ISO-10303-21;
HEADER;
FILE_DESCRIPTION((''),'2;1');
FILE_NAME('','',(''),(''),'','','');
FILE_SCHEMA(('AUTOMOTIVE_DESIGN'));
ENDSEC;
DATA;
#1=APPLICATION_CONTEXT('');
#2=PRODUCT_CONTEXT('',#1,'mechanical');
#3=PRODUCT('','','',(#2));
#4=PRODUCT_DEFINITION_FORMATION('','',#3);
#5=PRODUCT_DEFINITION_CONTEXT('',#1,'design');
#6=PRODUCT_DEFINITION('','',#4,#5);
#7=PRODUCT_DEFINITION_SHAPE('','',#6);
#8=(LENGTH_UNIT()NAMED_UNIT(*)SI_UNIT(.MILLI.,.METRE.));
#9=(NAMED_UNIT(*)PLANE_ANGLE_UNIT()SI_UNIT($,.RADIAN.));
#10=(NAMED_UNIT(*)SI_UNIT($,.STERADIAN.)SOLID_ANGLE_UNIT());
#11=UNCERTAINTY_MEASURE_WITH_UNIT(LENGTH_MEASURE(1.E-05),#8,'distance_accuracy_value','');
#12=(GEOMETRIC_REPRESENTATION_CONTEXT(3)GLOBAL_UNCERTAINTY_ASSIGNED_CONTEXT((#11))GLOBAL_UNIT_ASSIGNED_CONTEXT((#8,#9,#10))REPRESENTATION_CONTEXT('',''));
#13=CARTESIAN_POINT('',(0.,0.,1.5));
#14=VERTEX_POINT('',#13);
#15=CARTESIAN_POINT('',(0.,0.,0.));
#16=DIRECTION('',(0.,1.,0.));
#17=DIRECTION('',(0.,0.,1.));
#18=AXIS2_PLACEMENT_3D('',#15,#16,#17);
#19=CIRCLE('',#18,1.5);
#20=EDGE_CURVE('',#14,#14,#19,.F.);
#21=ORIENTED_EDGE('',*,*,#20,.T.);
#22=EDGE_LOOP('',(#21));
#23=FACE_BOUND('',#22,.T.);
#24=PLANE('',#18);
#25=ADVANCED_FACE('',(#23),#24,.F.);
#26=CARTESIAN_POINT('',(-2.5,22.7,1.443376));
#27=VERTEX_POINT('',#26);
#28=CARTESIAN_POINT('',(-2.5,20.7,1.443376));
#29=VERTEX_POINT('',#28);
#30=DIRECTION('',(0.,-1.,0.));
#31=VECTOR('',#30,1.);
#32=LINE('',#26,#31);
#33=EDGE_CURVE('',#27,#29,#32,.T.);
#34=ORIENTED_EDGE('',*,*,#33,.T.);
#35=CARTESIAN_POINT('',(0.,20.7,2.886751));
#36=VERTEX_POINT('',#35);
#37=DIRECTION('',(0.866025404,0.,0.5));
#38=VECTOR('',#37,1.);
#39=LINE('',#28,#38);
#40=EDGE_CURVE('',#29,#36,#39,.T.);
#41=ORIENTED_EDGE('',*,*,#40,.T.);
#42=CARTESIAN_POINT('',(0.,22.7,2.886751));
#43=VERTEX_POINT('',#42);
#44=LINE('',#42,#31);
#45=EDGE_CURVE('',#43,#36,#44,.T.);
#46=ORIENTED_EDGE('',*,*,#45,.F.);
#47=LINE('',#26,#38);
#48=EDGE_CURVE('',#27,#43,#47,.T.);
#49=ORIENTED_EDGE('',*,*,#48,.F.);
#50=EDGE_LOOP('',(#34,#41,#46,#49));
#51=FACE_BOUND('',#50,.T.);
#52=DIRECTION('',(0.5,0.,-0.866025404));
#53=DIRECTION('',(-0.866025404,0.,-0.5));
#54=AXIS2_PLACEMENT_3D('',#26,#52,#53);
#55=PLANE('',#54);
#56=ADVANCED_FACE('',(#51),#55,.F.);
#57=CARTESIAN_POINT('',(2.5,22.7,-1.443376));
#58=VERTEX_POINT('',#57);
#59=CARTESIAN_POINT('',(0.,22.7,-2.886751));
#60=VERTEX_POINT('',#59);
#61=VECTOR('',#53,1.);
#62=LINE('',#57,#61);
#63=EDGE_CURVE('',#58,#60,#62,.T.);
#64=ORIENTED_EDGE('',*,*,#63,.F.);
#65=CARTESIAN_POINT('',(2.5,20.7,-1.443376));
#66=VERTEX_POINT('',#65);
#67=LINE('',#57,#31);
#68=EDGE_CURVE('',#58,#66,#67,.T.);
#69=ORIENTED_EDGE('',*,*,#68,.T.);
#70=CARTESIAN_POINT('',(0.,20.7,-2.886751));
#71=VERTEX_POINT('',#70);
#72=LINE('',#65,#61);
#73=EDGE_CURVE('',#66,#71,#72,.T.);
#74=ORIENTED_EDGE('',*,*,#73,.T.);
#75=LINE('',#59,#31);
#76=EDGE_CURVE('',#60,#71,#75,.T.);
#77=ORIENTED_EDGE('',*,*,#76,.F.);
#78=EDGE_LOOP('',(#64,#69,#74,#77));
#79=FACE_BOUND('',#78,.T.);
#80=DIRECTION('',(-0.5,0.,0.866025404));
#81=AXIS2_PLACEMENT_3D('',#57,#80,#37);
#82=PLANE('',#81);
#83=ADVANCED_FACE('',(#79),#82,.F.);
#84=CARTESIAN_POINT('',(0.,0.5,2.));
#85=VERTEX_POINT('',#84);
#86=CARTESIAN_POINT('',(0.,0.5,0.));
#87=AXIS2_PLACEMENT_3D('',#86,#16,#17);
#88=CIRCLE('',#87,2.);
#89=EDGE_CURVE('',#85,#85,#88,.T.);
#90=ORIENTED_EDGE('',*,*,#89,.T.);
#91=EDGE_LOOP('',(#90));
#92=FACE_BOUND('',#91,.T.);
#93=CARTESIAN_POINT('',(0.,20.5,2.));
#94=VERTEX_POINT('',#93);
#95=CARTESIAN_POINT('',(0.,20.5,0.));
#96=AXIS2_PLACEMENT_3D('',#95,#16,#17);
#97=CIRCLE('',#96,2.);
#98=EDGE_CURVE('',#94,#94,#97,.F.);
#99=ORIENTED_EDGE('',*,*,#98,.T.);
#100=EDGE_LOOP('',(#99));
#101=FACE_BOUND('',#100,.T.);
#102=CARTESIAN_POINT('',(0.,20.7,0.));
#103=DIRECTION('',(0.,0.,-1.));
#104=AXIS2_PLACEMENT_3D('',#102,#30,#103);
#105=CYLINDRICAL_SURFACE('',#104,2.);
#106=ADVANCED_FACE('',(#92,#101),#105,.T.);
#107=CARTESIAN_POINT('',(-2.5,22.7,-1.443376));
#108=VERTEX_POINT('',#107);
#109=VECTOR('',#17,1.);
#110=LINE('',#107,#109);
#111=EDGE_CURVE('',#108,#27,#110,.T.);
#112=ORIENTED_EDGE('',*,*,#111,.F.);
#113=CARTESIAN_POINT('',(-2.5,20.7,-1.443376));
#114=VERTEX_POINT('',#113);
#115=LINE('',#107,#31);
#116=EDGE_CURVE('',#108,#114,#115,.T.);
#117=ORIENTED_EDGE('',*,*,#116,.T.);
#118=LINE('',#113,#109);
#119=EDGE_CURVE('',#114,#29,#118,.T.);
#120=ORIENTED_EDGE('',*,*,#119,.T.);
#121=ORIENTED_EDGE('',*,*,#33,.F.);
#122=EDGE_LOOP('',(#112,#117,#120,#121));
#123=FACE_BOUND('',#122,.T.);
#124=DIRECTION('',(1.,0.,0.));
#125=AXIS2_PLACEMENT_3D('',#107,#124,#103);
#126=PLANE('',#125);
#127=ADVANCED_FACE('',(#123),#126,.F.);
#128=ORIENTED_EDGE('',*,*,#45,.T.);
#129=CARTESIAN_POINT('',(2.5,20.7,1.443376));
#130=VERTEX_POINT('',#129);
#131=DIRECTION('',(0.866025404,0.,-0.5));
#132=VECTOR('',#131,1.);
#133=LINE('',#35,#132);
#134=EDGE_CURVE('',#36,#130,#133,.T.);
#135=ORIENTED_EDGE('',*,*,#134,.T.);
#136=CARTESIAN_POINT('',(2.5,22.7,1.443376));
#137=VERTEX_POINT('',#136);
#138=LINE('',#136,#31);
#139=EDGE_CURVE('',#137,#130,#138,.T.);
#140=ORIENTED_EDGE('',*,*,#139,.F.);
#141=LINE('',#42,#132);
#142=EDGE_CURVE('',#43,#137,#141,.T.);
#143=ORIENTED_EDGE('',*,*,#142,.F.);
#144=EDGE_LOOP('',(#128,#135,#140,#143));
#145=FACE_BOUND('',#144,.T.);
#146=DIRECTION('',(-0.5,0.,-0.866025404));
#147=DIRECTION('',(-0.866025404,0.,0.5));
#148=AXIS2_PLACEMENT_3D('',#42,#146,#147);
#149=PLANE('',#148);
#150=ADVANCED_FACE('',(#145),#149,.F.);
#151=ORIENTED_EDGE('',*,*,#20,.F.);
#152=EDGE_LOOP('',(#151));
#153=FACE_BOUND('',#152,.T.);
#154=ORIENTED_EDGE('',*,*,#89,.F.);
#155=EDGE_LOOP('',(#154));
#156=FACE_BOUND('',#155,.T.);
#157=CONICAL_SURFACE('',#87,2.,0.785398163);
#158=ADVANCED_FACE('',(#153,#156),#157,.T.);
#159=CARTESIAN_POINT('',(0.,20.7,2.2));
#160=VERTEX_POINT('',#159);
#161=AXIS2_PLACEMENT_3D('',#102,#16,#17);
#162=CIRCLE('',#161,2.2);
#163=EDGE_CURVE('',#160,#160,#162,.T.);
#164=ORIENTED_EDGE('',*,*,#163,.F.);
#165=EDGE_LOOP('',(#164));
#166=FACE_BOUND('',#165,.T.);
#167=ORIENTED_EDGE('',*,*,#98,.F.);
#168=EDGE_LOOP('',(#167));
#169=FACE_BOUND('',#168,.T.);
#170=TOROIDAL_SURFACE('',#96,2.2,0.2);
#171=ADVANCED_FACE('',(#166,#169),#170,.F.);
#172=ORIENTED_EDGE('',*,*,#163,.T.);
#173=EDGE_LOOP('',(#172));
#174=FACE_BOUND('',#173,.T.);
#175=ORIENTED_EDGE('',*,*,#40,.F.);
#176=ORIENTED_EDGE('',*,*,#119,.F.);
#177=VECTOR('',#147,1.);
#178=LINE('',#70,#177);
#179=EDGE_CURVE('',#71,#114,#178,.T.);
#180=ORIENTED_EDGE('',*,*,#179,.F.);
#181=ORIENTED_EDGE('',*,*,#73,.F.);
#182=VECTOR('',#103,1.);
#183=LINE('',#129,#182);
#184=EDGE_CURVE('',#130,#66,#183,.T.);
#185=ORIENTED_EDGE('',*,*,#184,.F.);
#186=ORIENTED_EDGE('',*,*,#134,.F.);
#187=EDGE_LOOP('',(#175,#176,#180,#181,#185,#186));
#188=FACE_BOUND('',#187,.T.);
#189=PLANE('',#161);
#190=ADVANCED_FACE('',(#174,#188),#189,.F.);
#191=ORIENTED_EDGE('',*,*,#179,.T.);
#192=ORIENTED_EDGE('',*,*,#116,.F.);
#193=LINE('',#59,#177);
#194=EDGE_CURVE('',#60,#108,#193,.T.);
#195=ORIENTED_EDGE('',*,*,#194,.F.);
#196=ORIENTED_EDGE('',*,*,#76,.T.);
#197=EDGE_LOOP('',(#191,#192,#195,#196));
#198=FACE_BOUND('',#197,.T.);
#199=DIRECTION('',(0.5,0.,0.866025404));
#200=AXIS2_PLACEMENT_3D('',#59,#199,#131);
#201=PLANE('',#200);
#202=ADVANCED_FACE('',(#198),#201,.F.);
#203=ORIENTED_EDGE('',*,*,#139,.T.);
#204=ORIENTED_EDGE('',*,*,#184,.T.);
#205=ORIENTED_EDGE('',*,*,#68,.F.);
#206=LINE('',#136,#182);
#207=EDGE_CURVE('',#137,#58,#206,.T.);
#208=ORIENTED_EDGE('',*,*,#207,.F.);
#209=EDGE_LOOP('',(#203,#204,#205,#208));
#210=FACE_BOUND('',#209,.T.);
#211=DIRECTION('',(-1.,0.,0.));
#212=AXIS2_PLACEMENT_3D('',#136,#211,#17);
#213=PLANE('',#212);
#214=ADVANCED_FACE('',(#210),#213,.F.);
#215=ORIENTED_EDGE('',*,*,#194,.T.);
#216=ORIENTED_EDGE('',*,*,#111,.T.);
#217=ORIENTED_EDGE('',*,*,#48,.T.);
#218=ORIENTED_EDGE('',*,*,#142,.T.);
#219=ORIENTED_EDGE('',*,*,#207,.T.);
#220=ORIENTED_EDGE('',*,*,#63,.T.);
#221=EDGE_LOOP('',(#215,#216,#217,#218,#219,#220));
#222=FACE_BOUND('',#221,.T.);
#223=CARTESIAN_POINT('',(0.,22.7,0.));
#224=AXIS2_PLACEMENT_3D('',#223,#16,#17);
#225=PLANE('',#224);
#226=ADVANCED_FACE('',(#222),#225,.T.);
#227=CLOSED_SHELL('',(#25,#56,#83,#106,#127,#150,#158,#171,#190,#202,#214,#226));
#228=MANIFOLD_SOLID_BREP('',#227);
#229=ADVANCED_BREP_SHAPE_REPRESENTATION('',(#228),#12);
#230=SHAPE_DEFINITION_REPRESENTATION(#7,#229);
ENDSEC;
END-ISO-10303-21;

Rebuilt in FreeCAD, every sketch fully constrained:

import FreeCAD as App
import Part
import Sketcher
Q = App.Units.Quantity


def edges_at(feature, points):
    """Names of the edges that pass closest to the given points."""
    edges = feature.Shape.Edges
    near = lambda p: min(range(len(edges)), key=lambda i: edges[i].distToShape(Part.Vertex(*p))[0])
    return sorted({f"Edge{near(p) + 1}" for p in points})


def add_polygon(sketch, points):
    """Adds a closed chain of lines whose ends are joined by coincident constraints."""
    first, n = sketch.GeometryCount, len(points)
    for a, b in zip(points, points[1:] + points[:1]):
        sketch.addGeometry(Part.LineSegment(App.Vector(*a, 0), App.Vector(*b, 0)), False)
    for i in range(n):
        sketch.addConstraint(Sketcher.Constraint("Coincident", first + i, 2, first + (i + 1) % n, 1))

doc = App.newDocument("Part")
params = doc.addObject("Spreadsheet::Sheet", "Params")
for row, (alias, value) in enumerate([
    ("sketch1_diameter", "4 mm"),
    ("pad1_length", "20.7 mm"),
    ("pad2_length", "2 mm"),
    ("chamfer_size", "0.5 mm"),
    ("fillet_radius", "0.2 mm"),
], start=1):
    params.set(f"A{row}", alias)
    params.set(f"B{row}", "=" + value)
    params.setAlias(f"B{row}", alias)

body = doc.addObject("PartDesign::Body", "Body")

sketch1 = doc.addObject("Sketcher::SketchObject", "Sketch")
body.addObject(sketch1)
sketch1.AttachmentSupport = (doc.XZ_Plane, [""])
sketch1.MapMode = "FlatFace"
sketch1.addGeometry(Part.Circle(App.Vector(0, 0, 0), App.Vector(0, 0, 1), 2), False)
sketch1.addConstraint([
    Sketcher.Constraint("Coincident", 0, 3, -1, 1),
    Sketcher.Constraint("Diameter", 0, 4.0),
])
sketch1.setExpression("Constraints[1]", "Params.sketch1_diameter")
pad1 = doc.addObject("PartDesign::Pad", "Pad")
body.addObject(pad1)
pad1.Profile = sketch1
pad1.setExpression("Length", "Params.pad1_length")
pad1.Reversed = True

sketch2 = doc.addObject("Sketcher::SketchObject", "Sketch001")
body.addObject(sketch2)
sketch2.AttachmentSupport = (doc.XZ_Plane, [""])
sketch2.MapMode = "FlatFace"
sketch2.AttachmentOffset = App.Placement(App.Vector(0, 0, -20.7), App.Rotation())
add_polygon(sketch2, [(0, -2.9), (-2.5, -1.4), (-2.5, 1.4), (0, 2.9), (2.5, 1.4), (2.5, -1.4)])
sketch2.addConstraint([
    Sketcher.Constraint("Vertical", 1),
    Sketcher.Constraint("Vertical", 4),
    Sketcher.Constraint("Symmetric", 0, 2, 3, 2, -1, 1),
    Sketcher.Constraint("Symmetric", 2, 2, 5, 2, -1, 1),
    Sketcher.Constraint("PointOnObject", 2, 2, -2),
    Sketcher.Constraint("Parallel", 2, 5),
    Sketcher.Constraint("Horizontal", 1, 2, 3, 2),
    Sketcher.Constraint("Angle", 0, Q("150 deg")),
    Sketcher.Constraint("DistanceX", 1, 2, 3, 2, 5.0),
    Sketcher.Constraint("DistanceY", 1, 1, 1, 2, 2.886751),
])
pad2 = doc.addObject("PartDesign::Pad", "Pad001")
body.addObject(pad2)
pad2.Profile = sketch2
pad2.setExpression("Length", "Params.pad2_length")
pad2.Reversed = True
doc.recompute()

chamfer = doc.addObject("PartDesign::Chamfer", "Chamfer")
body.addObject(chamfer)
chamfer.Base = (pad2, edges_at(pad2, [(-2, 0, 0)]))
chamfer.setExpression("Size", "Params.chamfer_size")
doc.recompute()

fillet = doc.addObject("PartDesign::Fillet", "Fillet")
body.addObject(fillet)
fillet.Base = (chamfer, edges_at(chamfer, [(-2, 20.7, 0)]))
fillet.setExpression("Radius", "Params.fillet_radius")

doc.recompute()
